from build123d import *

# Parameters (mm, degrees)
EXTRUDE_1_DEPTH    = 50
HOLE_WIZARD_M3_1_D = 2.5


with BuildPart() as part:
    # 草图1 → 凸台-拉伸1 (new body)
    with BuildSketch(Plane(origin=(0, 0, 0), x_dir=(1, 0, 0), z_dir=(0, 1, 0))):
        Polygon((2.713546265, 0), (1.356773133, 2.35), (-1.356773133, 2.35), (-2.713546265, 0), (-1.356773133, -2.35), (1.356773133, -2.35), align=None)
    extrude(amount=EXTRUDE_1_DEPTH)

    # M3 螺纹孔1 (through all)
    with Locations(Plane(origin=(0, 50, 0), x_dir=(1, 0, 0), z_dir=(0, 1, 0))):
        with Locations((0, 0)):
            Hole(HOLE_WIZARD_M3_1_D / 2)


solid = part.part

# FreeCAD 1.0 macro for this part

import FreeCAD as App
import Part
import Sketcher
Q = App.Units.Quantity


def add_polygon(sketch, points):
    """Adds a closed chain of lines whose ends are joined by coincident constraints."""
    first, n = sketch.GeometryCount, len(points)
    for a, b in zip(points, points[1:] + points[:1]):
        sketch.addGeometry(Part.LineSegment(App.Vector(*a, 0), App.Vector(*b, 0)), False)
    for i in range(n):
        sketch.addConstraint(Sketcher.Constraint("Coincident", first + i, 2, first + (i + 1) % n, 1))

doc = App.newDocument("Part")
body = doc.addObject("PartDesign::Body", "Body")

# Sketch on XZ plane
sketch1 = doc.addObject("Sketcher::SketchObject", "Sketch")
body.addObject(sketch1)
sketch1.AttachmentSupport = (doc.XZ_Plane, [""])
sketch1.MapMode = "FlatFace"
add_polygon(sketch1, [(2.7, 0), (1.4, -2.4), (-1.4, -2.4), (-2.7, 0), (-1.4, 2.4), (1.4, 2.4)])  # lines 0-5
sketch1.addConstraint(Sketcher.Constraint("Horizontal", 1))
sketch1.addConstraint(Sketcher.Constraint("Horizontal", 4))
sketch1.addConstraint(Sketcher.Constraint("Symmetric", 0, 2, 3, 2, -1, 1))
sketch1.addConstraint(Sketcher.Constraint("Symmetric", 2, 2, 5, 2, -1, 1))
sketch1.addConstraint(Sketcher.Constraint("PointOnObject", 2, 2, -1))
sketch1.addConstraint(Sketcher.Constraint("Parallel", 2, 5))
sketch1.addConstraint(Sketcher.Constraint("Vertical", 1, 2, 3, 2))
sketch1.addConstraint(Sketcher.Constraint("Angle", 0, Q("-120 deg")))
sketch1.addConstraint(Sketcher.Constraint("DistanceY", 1, 2, 3, 2, Q("4.7 mm")))
sketch1.addConstraint(Sketcher.Constraint("DistanceX", 1, 2, 1, 1, Q("2.713546 mm")))
pad1 = doc.addObject("PartDesign::Pad", "Pad")
body.addObject(pad1)
pad1.Profile = sketch1
pad1.Length = 50
pad1.Reversed = True

# Sketch on XZ plane
sketch2 = doc.addObject("Sketcher::SketchObject", "Sketch001")
body.addObject(sketch2)
sketch2.AttachmentSupport = (doc.XZ_Plane, [""])
sketch2.MapMode = "FlatFace"
sketch2.AttachmentOffset = App.Placement(App.Vector(0, 0, -50), App.Rotation())
sketch2.addGeometry(Part.Circle(App.Vector(0, 0, 0), App.Vector(0, 0, 1), 1.2), False)
sketch2.addConstraint(Sketcher.Constraint("Coincident", 0, 3, -1, 1))
sketch2.addConstraint(Sketcher.Constraint("Diameter", 0, Q("2.5 mm")))
doc.recompute()
hole = doc.addObject("PartDesign::Hole", "Hole")
body.addObject(hole)
hole.Profile = sketch2
hole.ThreadType = "None"
hole.Diameter = 2.5
hole.DepthType = "ThroughAll"
hole.Reversed = True

doc.recompute()
